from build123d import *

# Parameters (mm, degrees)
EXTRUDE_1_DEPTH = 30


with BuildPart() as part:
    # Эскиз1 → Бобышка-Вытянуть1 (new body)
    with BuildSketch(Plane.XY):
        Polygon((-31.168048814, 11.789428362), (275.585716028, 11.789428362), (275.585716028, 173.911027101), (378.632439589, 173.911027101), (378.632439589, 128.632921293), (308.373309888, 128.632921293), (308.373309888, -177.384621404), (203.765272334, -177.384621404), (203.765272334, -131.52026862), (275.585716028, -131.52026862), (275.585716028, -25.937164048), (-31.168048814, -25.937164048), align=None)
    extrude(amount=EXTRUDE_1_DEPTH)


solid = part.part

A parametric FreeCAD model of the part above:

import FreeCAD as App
import Part
import Sketcher
from FreeCAD import Vector


def add_polygon(sketch, points):
    """Adds a closed chain of lines whose ends are joined by coincident constraints."""
    first, n = sketch.GeometryCount, len(points)
    for a, b in zip(points, points[1:] + points[:1]):
        sketch.addGeometry(Part.LineSegment(App.Vector(*a, 0), App.Vector(*b, 0)), False)
    for i in range(n):
        sketch.addConstraint(Sketcher.Constraint("Coincident", first + i, 2, first + (i + 1) % n, 1))

doc = App.newDocument("Part")
params = doc.addObject("Spreadsheet::Sheet", "Params")
for row, (alias, value) in enumerate([
    ("pad1_length", "30 mm"),
], start=1):
    params.set(f"A{row}", alias)
    params.set(f"B{row}", "=" + value)
    params.setAlias(f"B{row}", alias)

body = doc.addObject("PartDesign::Body", "Body")

sketch1 = body.newObject("Sketcher::SketchObject", "Sketch")
sketch1.AttachmentSupport = (doc.getObject("XY_Plane"), [""])
sketch1.MapMode = "FlatFace"
add_polygon(sketch1, [(276, 12), (-31, 12), (-31, -26), (276, -26), (276, -132), (204, -132), (204, -177), (308, -177), (308, 129), (379, 129), (379, 174), (276, 174)])
sketch1.addConstraint(Sketcher.Constraint("Horizontal", 0))
sketch1.addConstraint(Sketcher.Constraint("Vertical", 1))
sketch1.addConstraint(Sketcher.Constraint("Horizontal", 2))
sketch1.addConstraint(Sketcher.Constraint("Vertical", 3))
sketch1.addConstraint(Sketcher.Constraint("Horizontal", 4))
sketch1.addConstraint(Sketcher.Constraint("Vertical", 5))
sketch1.addConstraint(Sketcher.Constraint("Horizontal", 6))
sketch1.addConstraint(Sketcher.Constraint("Vertical", 7))
sketch1.addConstraint(Sketcher.Constraint("Horizontal", 8))
sketch1.addConstraint(Sketcher.Constraint("Vertical", 9))
sketch1.addConstraint(Sketcher.Constraint("Horizontal", 10))
sketch1.addConstraint(Sketcher.Constraint("Vertical", 11))
sketch1.addConstraint(Sketcher.Constraint("Vertical", 3, 2, 10, 2))
sketch1.addConstraint(Sketcher.Constraint("DistanceY", 11, 2, 11, 1, 162.121599))
sketch1.addConstraint(Sketcher.Constraint("DistanceX", 8, 1, 8, 2, 70.25913))
sketch1.addConstraint(Sketcher.Constraint("DistanceX", 0, 2, 0, 1, 306.753765))
sketch1.addConstraint(Sketcher.Constraint("DistanceX", 4, 2, 4, 1, 71.820444))
sketch1.addConstraint(Sketcher.Constraint("DistanceX", 6, 1, 6, 2, 104.608038))
sketch1.addConstraint(Sketcher.Constraint("DistanceY", 1, 2, 1, 1, 37.726592))
sketch1.addConstraint(Sketcher.Constraint("DistanceY", 3, 2, 3, 1, 105.583105))
sketch1.addConstraint(Sketcher.Constraint("DistanceY", 5, 2, 5, 1, 45.864353))
sketch1.addConstraint(Sketcher.Constraint("DistanceY", 7, 1, 7, 2, 306.017543))
sketch1.addConstraint(Sketcher.Constraint("DistanceX", 0, 2, -1, 1, 31.168049))
sketch1.addConstraint(Sketcher.Constraint("DistanceY", -1, 1, 0, 2, 11.789428))
pad1 = body.newObject("PartDesign::Pad", "Pad")
pad1.Profile = sketch1
pad1.setExpression("Length", "Params.pad1_length")

doc.recompute()
